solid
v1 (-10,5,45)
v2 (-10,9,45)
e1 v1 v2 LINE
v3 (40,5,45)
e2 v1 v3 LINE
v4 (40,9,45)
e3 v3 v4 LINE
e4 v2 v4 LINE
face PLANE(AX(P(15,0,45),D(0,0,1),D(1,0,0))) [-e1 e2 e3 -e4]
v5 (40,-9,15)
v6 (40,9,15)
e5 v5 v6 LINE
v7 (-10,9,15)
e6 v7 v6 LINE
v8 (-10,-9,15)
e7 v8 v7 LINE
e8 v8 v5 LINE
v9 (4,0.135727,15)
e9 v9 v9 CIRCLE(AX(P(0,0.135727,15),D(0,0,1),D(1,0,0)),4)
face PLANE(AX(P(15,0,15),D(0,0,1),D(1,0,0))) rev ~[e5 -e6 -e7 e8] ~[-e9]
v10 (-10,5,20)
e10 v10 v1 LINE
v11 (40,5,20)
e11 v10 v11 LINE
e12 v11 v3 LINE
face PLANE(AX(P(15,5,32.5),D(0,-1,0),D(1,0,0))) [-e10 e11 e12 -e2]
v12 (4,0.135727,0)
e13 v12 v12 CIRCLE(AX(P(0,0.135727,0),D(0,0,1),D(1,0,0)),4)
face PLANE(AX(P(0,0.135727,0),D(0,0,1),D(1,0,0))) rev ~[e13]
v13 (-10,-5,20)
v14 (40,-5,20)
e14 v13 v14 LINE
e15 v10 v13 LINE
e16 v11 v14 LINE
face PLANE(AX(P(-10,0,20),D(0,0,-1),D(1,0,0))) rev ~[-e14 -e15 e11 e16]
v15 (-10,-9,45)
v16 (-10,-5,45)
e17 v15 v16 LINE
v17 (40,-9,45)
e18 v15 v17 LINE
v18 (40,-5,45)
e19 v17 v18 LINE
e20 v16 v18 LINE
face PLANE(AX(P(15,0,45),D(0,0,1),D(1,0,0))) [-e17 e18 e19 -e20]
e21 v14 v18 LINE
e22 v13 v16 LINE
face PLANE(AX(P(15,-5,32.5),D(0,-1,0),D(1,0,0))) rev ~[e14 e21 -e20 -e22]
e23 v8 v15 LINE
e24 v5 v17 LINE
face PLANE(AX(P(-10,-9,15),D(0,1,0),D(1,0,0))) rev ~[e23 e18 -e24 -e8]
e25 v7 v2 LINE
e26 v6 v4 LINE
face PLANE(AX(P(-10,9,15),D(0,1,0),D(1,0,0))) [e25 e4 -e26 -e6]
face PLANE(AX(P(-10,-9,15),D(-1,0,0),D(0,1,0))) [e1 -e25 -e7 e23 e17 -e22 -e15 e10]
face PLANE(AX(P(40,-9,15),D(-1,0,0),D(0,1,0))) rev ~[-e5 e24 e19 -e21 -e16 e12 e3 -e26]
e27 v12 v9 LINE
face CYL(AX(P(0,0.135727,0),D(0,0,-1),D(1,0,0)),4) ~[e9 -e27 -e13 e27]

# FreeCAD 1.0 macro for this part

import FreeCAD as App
import Part
import Sketcher

V = App.Vector


def add_polygon(sketch, points):
    """Adds a closed chain of lines whose ends are joined by coincident constraints."""
    first, n = sketch.GeometryCount, len(points)
    for a, b in zip(points, points[1:] + points[:1]):
        sketch.addGeometry(Part.LineSegment(App.Vector(*a, 0), App.Vector(*b, 0)), False)
    for i in range(n):
        sketch.addConstraint(Sketcher.Constraint("Coincident", first + i, 2, first + (i + 1) % n, 1))

doc = App.newDocument("Part")
body = doc.addObject("PartDesign::Body", "Body")

# Sketch on XY plane
sketch1 = doc.addObject("Sketcher::SketchObject", "Sketch")
body.addObject(sketch1)
sketch1.AttachmentSupport = (doc.XY_Plane, [""])
sketch1.MapMode = "FlatFace"
sketch1.addGeometry(Part.Circle(V(0, 0.1, 0), V(0, 0, 1), 4), False)
sketch1.addConstraint(Sketcher.Constraint("PointOnObject", 0, 3, -2))
sketch1.addConstraint(Sketcher.Constraint("Diameter", 0, 8.0))
sketch1.addConstraint(Sketcher.Constraint("DistanceY", -1, 1, 0, 3, 0.135727))
pad1 = doc.addObject("PartDesign::Pad", "Pad")
body.addObject(pad1)
pad1.Profile = sketch1
pad1.Length = 15

# Sketch on XY plane
sketch2 = doc.addObject("Sketcher::SketchObject", "Sketch001")
body.addObject(sketch2)
sketch2.AttachmentSupport = (doc.XY_Plane, [""])
sketch2.MapMode = "FlatFace"
sketch2.AttachmentOffset = App.Placement(V(0, 0, 15), App.Rotation())
add_polygon(sketch2, [(-10, 9), (-10, -9), (40, -9), (40, 9)])  # lines 0-3
sketch2.addConstraint(Sketcher.Constraint("Vertical", 0))
sketch2.addConstraint(Sketcher.Constraint("Horizontal", 1))
sketch2.addConstraint(Sketcher.Constraint("Vertical", 2))
sketch2.addConstraint(Sketcher.Constraint("Horizontal", 3))
sketch2.addConstraint(Sketcher.Constraint("DistanceX", 1, 1, 1, 2, 50.0))
sketch2.addConstraint(Sketcher.Constraint("DistanceY", 0, 2, 0, 1, 18.0))
sketch2.addConstraint(Sketcher.Constraint("DistanceX", 0, 2, -1, 1, 10.0))
sketch2.addConstraint(Sketcher.Constraint("DistanceY", 0, 2, -1, 1, 9.0))
pad2 = doc.addObject("PartDesign::Pad", "Pad001")
body.addObject(pad2)
pad2.Profile = sketch2
pad2.Length = 30

# Sketch on XZ plane
sketch3 = doc.addObject("Sketcher::SketchObject", "Sketch002")
body.addObject(sketch3)
sketch3.AttachmentSupport = (doc.XZ_Plane, [""])
sketch3.MapMode = "FlatFace"
add_polygon(sketch3, [(-10, 45), (-10, 20), (40, 20), (40, 45)])  # lines 0-3
sketch3.addConstraint(Sketcher.Constraint("Vertical", 0))
sketch3.addConstraint(Sketcher.Constraint("Horizontal", 1))
sketch3.addConstraint(Sketcher.Constraint("Vertical", 2))
sketch3.addConstraint(Sketcher.Constraint("Horizontal", 3))
sketch3.addConstraint(Sketcher.Constraint("DistanceX", 1, 1, 1, 2, 50.0))
sketch3.addConstraint(Sketcher.Constraint("DistanceY", 0, 2, 0, 1, 25.0))
sketch3.addConstraint(Sketcher.Constraint("DistanceX", 0, 2, -1, 1, 10.0))
sketch3.addConstraint(Sketcher.Constraint("DistanceY", -1, 1, 0, 2, 20.0))
pocket1 = doc.addObject("PartDesign::Pocket", "Pocket")
body.addObject(pocket1)
pocket1.Profile = sketch3
pocket1.Length = 10
pocket1.Midplane = True

doc.recompute()
